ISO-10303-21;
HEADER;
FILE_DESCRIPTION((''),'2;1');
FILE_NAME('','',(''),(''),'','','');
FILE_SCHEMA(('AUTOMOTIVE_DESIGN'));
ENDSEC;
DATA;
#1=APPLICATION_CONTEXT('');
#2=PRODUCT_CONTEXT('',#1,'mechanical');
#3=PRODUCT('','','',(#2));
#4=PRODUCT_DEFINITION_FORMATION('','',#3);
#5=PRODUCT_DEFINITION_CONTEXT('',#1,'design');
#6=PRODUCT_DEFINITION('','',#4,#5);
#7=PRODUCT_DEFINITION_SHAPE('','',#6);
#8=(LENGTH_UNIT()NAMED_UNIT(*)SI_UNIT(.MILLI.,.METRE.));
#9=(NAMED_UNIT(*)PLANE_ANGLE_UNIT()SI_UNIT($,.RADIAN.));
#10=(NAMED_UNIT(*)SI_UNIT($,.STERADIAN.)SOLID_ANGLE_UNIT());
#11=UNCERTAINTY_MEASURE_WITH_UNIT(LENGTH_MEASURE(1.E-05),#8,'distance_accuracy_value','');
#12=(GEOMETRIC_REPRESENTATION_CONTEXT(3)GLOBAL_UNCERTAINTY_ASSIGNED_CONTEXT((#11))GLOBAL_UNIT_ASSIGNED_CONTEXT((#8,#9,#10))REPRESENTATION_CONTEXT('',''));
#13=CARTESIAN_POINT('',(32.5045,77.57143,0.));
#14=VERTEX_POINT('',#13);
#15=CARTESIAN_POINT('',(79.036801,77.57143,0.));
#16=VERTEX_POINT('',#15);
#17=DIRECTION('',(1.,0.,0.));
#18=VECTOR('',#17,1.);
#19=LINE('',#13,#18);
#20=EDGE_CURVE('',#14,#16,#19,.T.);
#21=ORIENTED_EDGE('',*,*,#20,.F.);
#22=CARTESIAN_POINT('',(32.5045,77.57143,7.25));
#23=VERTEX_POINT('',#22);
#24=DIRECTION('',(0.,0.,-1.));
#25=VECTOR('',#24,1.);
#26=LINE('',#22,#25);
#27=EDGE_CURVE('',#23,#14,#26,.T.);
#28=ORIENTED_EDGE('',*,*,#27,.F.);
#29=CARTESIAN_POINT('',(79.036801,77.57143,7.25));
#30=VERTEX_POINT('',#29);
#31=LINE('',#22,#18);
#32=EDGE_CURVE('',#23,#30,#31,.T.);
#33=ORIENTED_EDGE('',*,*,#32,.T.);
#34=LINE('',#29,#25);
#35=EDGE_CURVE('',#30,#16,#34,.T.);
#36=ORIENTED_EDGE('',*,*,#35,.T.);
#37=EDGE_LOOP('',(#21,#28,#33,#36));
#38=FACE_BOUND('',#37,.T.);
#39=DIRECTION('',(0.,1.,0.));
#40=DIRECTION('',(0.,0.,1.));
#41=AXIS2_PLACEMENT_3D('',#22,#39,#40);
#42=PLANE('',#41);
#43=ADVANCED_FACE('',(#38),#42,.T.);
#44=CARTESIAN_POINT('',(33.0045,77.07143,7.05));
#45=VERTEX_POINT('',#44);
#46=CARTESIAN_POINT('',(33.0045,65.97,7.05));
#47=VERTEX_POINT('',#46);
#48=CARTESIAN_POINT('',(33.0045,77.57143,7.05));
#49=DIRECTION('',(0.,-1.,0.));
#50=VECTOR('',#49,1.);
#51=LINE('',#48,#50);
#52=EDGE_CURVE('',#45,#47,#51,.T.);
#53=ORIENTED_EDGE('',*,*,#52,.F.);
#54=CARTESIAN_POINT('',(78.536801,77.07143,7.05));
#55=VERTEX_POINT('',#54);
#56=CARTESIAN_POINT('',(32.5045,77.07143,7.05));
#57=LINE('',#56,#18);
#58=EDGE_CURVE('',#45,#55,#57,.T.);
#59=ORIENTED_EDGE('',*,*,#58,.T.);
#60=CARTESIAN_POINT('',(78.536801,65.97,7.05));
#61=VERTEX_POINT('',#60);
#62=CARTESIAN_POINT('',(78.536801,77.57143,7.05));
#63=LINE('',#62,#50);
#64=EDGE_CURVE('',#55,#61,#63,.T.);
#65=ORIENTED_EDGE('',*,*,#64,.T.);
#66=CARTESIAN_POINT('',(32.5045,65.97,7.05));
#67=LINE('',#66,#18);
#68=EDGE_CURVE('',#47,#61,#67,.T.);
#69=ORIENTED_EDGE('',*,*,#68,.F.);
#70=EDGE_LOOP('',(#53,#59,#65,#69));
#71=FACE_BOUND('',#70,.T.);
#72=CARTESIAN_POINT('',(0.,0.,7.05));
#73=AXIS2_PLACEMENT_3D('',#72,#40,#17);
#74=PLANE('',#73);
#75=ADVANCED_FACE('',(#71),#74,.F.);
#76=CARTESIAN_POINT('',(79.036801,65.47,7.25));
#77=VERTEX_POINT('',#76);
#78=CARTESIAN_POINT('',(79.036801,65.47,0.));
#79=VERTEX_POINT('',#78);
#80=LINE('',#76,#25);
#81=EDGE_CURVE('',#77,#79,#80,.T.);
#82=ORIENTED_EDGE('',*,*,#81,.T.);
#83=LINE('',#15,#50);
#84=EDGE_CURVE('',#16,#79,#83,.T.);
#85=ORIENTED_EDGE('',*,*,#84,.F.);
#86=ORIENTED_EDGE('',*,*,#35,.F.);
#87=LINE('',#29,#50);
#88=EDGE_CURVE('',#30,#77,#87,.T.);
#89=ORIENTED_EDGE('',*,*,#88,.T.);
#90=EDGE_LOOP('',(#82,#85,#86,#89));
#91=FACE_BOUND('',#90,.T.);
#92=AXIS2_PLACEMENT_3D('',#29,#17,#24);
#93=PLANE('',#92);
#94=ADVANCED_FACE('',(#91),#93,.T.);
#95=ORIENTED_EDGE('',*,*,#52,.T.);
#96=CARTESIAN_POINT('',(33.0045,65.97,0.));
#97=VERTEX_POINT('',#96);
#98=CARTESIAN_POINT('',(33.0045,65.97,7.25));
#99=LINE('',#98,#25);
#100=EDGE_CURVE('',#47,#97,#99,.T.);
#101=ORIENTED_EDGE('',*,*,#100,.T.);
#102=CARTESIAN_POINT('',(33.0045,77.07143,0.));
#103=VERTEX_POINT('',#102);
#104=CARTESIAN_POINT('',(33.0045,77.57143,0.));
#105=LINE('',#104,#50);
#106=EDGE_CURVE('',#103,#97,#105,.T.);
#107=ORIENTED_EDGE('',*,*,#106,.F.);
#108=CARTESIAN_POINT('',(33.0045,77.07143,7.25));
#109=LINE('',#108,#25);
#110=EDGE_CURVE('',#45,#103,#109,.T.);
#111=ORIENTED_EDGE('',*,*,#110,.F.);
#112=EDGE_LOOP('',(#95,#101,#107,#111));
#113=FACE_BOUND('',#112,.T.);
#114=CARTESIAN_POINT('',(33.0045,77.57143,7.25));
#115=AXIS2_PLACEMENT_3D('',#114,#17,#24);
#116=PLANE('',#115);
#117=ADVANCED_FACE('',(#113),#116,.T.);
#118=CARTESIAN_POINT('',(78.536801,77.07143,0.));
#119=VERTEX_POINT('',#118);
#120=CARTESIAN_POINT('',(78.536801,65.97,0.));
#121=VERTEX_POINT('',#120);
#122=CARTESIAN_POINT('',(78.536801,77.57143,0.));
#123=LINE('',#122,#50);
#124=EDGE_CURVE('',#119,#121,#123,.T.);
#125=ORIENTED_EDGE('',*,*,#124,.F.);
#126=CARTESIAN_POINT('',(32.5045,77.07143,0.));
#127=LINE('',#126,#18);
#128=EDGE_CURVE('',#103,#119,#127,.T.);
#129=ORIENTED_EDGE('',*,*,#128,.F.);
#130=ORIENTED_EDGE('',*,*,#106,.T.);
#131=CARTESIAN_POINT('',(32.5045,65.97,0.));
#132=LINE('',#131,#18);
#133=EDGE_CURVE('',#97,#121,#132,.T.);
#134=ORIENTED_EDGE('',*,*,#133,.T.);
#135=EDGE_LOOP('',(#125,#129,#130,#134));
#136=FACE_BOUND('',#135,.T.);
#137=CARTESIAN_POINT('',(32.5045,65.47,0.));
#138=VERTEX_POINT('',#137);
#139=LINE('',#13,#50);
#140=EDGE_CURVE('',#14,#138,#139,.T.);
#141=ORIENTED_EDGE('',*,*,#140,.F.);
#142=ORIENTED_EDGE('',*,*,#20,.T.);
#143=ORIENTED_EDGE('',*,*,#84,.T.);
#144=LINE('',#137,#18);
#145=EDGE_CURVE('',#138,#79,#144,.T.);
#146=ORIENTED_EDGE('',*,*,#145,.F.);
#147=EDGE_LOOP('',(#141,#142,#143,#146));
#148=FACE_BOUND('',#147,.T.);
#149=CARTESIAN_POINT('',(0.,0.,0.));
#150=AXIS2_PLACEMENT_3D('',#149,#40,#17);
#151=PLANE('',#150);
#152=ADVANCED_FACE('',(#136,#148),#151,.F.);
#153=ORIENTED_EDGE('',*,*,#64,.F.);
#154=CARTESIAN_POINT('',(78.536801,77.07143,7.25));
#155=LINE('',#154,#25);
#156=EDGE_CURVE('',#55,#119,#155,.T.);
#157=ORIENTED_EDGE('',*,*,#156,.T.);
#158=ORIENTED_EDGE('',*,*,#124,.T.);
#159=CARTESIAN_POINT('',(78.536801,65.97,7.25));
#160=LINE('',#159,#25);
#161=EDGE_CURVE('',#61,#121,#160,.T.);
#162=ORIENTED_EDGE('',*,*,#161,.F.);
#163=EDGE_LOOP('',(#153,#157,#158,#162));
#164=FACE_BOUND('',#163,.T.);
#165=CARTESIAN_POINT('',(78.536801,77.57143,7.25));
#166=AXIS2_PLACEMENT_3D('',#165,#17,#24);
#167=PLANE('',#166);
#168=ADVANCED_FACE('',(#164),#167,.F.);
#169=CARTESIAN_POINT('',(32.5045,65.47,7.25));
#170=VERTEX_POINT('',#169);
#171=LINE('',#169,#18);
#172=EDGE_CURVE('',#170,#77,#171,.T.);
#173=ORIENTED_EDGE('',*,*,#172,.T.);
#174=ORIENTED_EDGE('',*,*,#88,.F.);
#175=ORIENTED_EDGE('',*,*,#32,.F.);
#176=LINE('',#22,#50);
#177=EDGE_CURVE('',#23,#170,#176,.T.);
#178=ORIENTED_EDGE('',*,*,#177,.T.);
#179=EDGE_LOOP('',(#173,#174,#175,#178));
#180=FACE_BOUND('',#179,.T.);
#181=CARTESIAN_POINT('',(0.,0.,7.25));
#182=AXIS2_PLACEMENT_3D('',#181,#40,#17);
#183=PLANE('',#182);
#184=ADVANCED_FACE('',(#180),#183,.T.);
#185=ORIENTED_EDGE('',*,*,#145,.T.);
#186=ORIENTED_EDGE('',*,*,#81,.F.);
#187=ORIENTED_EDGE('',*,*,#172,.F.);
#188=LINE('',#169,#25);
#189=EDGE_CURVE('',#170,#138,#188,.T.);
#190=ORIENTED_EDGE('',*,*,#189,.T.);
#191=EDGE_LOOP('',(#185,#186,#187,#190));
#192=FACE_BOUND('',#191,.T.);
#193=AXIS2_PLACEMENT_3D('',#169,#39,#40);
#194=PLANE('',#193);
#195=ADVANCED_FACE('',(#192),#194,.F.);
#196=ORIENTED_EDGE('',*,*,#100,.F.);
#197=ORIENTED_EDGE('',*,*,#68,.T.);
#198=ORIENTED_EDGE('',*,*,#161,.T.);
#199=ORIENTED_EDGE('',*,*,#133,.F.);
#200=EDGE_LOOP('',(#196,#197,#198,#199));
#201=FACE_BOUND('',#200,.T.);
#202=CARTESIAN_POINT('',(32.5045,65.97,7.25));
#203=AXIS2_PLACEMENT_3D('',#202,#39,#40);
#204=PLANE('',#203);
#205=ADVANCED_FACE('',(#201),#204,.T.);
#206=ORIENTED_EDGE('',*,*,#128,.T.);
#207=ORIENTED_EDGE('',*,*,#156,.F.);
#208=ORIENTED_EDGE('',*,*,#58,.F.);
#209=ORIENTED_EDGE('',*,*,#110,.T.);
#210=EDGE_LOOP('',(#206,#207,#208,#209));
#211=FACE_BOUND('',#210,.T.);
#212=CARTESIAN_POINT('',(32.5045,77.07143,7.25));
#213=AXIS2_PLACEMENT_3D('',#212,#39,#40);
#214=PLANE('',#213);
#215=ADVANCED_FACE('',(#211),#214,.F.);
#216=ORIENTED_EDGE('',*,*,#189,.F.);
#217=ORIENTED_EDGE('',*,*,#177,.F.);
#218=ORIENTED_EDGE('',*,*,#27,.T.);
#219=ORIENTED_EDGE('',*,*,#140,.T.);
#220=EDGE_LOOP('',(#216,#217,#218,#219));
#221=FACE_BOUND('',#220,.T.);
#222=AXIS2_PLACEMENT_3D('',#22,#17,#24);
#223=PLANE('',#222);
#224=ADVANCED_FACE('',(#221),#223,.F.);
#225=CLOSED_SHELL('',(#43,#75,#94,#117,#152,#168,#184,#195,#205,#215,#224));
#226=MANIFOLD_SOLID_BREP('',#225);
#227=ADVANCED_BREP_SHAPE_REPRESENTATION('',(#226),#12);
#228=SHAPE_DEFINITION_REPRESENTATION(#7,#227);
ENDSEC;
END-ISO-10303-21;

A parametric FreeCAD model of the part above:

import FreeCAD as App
import Part
import Sketcher

V = App.Vector
Q = App.Units.Quantity


def faces_at(feature, points):
    """Names of the faces that lie closest to the given points."""
    faces = feature.Shape.Faces
    near = lambda p: min(range(len(faces)), key=lambda i: faces[i].distToShape(Part.Vertex(*p))[0])
    return sorted({f"Face{near(p) + 1}" for p in points})


def add_polygon(sketch, points):
    """Adds a closed chain of lines whose ends are joined by coincident constraints."""
    first, n = sketch.GeometryCount, len(points)
    for a, b in zip(points, points[1:] + points[:1]):
        sketch.addGeometry(Part.LineSegment(App.Vector(*a, 0), App.Vector(*b, 0)), False)
    for i in range(n):
        sketch.addConstraint(Sketcher.Constraint("Coincident", first + i, 2, first + (i + 1) % n, 1))

doc = App.newDocument("Part")
body = doc.addObject("PartDesign::Body", "Body")

# Sketch on XY plane
sketch1 = body.newObject("Sketcher::SketchObject", "Sketch")
sketch1.AttachmentSupport = (doc.getObject("XY_Plane"), [""])
sketch1.MapMode = "FlatFace"
add_polygon(sketch1, [(33, 78), (33, 65), (79, 65), (79, 78)])  # lines 0-3
sketch1.addConstraint(Sketcher.Constraint("Vertical", 0))
sketch1.addConstraint(Sketcher.Constraint("Horizontal", 1))
sketch1.addConstraint(Sketcher.Constraint("Vertical", 2))
sketch1.addConstraint(Sketcher.Constraint("Horizontal", 3))
sketch1.addConstraint(Sketcher.Constraint("DistanceY", -1, 1, 0, 2, Q("65.47 mm")))
sketch1.addConstraint(Sketcher.Constraint("DistanceX", 1, 1, 1, 2, Q("46.532301 mm")))
sketch1.addConstraint(Sketcher.Constraint("DistanceY", 0, 2, 0, 1, Q("12.10143 mm")))
sketch1.addConstraint(Sketcher.Constraint("DistanceX", -1, 1, 0, 2, Q("32.5045 mm")))
pad1 = body.newObject("PartDesign::Pad", "Pad")
pad1.Profile = sketch1
pad1.Length = 7.25
doc.recompute()

thickness = body.newObject("PartDesign::Thickness", "Thickness")
thickness.Base = (pad1, faces_at(pad1, [(55.771, 71.521, 0)]))
thickness.Value = 0.5
thickness.Reversed = True
thickness.Join = "Intersection"

# Sketch on XY plane
sketch2 = body.newObject("Sketcher::SketchObject", "Sketch001")
sketch2.AttachmentSupport = (doc.getObject("XY_Plane"), [""])
sketch2.MapMode = "FlatFace"
sketch2.AttachmentOffset = App.Placement(V(0, 0, 6.75), App.Rotation())
add_polygon(sketch2, [(33, 77), (33, 66), (79, 66), (79, 77)])  # lines 0-3
sketch2.addConstraint(Sketcher.Constraint("Vertical", 0))
sketch2.addConstraint(Sketcher.Constraint("Horizontal", 1))
sketch2.addConstraint(Sketcher.Constraint("Vertical", 2))
sketch2.addConstraint(Sketcher.Constraint("Horizontal", 3))
sketch2.addConstraint(Sketcher.Constraint("DistanceY", -1, 1, 0, 2, Q("65.97 mm")))
sketch2.addConstraint(Sketcher.Constraint("DistanceX", 1, 1, 1, 2, Q("45.532301 mm")))
sketch2.addConstraint(Sketcher.Constraint("DistanceY", 0, 2, 0, 1, Q("11.10143 mm")))
sketch2.addConstraint(Sketcher.Constraint("DistanceX", -1, 1, 0, 2, Q("33.0045 mm")))
pocket1 = body.newObject("PartDesign::Pocket", "Pocket")
pocket1.Profile = sketch2
pocket1.Length = 0.3
pocket1.Reversed = True

doc.recompute()
